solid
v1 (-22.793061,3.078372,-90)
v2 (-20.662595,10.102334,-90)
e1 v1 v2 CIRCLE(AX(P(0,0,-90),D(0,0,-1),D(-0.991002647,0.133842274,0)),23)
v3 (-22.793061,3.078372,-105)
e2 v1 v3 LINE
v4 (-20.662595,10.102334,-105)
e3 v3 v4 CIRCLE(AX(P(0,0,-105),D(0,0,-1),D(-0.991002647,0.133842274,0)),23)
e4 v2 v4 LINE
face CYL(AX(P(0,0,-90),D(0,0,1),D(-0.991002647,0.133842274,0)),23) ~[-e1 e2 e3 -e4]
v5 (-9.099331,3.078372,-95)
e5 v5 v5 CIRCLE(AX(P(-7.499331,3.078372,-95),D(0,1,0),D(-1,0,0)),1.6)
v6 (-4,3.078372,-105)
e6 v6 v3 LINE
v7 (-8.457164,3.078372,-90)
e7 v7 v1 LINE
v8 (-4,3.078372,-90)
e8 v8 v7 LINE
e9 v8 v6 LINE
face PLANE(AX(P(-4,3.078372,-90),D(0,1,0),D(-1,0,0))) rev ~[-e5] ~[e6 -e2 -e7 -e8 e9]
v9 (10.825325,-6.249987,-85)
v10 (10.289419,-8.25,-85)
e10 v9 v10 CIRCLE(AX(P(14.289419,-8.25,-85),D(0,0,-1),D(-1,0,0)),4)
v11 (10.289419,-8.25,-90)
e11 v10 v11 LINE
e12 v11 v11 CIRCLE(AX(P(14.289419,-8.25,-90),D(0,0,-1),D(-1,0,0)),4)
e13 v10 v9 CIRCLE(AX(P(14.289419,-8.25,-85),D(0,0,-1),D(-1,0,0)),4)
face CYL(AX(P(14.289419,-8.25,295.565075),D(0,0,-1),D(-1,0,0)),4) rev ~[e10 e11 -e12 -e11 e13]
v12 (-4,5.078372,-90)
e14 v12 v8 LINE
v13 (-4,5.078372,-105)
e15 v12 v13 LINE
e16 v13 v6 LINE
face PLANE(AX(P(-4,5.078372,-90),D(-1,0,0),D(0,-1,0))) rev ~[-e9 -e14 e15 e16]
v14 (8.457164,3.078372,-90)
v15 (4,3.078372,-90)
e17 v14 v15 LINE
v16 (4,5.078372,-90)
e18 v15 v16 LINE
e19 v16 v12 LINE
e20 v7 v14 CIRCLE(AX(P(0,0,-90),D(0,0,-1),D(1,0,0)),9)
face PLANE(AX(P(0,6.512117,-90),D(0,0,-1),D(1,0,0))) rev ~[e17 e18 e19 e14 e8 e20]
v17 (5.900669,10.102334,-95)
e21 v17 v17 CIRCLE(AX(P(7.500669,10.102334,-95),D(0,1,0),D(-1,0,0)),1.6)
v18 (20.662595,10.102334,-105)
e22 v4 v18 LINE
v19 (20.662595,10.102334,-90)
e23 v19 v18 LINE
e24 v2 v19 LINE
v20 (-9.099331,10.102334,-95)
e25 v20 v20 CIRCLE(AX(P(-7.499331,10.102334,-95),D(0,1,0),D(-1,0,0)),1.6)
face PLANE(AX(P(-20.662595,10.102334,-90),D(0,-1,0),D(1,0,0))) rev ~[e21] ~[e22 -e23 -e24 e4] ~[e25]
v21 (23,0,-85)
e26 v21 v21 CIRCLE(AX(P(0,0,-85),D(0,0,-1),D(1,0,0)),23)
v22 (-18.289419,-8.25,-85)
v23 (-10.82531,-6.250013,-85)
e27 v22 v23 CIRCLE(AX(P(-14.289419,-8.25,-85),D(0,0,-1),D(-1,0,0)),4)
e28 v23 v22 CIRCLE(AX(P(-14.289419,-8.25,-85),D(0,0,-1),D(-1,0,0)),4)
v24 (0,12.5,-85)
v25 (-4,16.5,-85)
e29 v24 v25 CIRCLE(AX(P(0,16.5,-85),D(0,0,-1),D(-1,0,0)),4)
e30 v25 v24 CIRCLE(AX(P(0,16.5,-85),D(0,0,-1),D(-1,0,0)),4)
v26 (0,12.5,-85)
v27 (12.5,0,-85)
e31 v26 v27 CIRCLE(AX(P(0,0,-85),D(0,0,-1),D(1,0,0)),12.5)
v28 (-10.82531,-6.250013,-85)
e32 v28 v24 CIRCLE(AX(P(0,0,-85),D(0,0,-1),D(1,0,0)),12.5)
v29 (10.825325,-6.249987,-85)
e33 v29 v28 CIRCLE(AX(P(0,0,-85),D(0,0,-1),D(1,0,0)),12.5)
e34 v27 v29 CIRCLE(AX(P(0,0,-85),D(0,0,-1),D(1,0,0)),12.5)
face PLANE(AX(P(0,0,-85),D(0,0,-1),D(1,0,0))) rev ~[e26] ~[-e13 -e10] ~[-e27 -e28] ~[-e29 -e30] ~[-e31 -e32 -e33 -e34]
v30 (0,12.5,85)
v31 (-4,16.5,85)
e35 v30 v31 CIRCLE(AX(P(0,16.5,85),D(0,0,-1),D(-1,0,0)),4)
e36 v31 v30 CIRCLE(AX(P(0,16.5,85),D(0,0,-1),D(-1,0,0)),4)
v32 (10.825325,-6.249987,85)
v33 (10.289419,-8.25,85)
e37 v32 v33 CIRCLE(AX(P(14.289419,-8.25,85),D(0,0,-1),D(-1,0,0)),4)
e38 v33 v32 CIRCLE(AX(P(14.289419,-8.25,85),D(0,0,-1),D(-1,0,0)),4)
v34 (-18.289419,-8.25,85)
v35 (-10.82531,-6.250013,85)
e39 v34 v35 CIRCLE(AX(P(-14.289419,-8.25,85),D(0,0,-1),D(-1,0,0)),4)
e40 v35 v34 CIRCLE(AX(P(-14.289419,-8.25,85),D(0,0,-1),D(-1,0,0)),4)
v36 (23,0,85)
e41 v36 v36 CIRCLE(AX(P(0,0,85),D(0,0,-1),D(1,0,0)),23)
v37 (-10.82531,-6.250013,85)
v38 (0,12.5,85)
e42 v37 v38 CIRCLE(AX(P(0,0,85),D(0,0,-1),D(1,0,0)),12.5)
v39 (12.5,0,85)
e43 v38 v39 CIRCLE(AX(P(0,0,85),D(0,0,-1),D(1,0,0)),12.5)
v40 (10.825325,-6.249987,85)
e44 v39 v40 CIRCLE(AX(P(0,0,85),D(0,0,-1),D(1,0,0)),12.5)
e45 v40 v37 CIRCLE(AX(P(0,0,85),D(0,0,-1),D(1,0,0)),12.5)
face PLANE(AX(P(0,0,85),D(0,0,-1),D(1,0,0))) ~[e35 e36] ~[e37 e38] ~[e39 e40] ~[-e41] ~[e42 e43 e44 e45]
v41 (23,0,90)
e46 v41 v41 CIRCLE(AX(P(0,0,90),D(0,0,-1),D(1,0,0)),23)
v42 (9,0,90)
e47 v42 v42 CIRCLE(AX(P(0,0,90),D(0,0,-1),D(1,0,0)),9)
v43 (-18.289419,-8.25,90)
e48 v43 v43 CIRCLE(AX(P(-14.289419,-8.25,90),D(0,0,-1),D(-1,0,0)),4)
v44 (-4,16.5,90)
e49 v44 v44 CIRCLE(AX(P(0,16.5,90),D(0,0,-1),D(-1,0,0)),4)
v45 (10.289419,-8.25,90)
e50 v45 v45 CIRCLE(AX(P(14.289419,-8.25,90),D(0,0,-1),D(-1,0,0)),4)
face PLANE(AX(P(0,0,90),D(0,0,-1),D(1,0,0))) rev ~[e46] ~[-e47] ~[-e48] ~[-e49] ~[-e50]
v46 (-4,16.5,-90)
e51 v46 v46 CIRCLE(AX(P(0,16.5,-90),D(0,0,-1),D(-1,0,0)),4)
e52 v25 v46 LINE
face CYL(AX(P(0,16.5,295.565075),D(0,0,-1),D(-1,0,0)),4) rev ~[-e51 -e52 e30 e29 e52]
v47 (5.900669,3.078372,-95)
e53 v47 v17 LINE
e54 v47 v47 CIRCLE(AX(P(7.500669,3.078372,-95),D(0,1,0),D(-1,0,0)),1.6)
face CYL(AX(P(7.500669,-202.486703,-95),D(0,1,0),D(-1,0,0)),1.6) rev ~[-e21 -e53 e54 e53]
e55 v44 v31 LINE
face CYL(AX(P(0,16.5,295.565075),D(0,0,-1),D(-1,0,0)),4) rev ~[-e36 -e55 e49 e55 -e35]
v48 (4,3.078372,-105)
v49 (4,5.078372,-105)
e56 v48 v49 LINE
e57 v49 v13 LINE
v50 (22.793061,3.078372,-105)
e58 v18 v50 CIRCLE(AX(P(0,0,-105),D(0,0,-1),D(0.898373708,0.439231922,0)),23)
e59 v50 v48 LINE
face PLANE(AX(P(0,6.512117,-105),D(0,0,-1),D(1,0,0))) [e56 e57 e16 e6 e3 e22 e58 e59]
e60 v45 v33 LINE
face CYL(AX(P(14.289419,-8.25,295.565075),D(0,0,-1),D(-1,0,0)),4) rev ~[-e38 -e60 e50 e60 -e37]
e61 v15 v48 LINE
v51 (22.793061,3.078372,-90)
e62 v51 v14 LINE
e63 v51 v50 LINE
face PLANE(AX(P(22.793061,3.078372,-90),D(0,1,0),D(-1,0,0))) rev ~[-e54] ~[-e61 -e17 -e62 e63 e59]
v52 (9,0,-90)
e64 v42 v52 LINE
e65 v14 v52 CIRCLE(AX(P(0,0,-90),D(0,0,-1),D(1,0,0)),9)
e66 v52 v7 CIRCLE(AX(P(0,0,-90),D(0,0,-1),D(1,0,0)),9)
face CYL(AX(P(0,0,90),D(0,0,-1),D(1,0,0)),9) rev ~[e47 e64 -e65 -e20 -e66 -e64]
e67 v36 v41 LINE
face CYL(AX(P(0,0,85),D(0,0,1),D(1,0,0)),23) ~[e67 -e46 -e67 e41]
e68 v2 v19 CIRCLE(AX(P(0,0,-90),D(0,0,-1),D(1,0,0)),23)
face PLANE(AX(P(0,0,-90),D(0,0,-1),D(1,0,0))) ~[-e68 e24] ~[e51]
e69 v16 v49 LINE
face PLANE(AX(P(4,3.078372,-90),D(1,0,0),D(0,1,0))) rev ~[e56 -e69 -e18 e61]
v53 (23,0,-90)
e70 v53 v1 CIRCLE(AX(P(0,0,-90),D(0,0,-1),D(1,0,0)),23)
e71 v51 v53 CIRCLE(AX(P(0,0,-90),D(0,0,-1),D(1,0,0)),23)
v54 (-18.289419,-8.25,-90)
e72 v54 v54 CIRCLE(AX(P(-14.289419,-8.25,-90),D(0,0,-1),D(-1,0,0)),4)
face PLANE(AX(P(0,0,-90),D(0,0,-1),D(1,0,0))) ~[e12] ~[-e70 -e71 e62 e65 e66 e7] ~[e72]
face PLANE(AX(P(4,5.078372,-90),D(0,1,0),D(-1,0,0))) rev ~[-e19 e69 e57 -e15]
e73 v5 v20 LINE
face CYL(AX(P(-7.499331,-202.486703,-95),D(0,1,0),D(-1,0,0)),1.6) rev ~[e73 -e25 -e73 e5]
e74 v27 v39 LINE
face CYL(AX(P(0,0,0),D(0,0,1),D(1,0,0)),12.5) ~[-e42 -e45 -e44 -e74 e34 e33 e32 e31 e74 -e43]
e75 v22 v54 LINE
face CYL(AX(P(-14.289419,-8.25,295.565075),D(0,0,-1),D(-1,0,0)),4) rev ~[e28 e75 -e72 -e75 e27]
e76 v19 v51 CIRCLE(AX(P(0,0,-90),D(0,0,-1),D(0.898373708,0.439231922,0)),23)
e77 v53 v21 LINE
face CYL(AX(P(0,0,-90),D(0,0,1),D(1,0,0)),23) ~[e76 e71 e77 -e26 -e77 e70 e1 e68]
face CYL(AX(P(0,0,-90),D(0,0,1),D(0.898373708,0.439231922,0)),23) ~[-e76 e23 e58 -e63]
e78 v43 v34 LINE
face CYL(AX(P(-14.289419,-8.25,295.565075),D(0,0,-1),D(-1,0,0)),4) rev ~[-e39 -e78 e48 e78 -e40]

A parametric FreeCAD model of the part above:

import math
import FreeCAD as App
import Part
import Sketcher

V = App.Vector


def add_polygon(sketch, points):
    """Adds a closed chain of lines whose ends are joined by coincident constraints."""
    first, n = sketch.GeometryCount, len(points)
    for a, b in zip(points, points[1:] + points[:1]):
        sketch.addGeometry(Part.LineSegment(App.Vector(*a, 0), App.Vector(*b, 0)), False)
    for i in range(n):
        sketch.addConstraint(Sketcher.Constraint("Coincident", first + i, 2, first + (i + 1) % n, 1))

doc = App.newDocument("Part")
params = doc.addObject("Spreadsheet::Sheet", "Params")
for row, (alias, value) in enumerate([
    ("sketch1_width", "14 mm"),
    ("sketch1_height", "170 mm"),
    ("sketch1_height2", "5 mm"),
    ("sketch1_width2", "10.5 mm"),
    ("revolution_angle", "360 deg"),
    ("sketch2_radius", "23 mm"),
    ("sketch2_width", "8 mm"),
    ("sketch2_height", "2 mm"),
    ("pad1_length", "15 mm"),
    ("sketch3_diameter", "3.2 mm"),
    ("hole_diameter", "3.2 mm"),
    ("sketch4_diameter", "8 mm"),
    ("hole2_diameter", "8 mm"),
], start=1):
    params.set(f"A{row}", alias)
    params.set(f"B{row}", "=" + value)
    params.setAlias(f"B{row}", alias)

body = doc.addObject("PartDesign::Body", "Body")

sketch1 = doc.addObject("Sketcher::SketchObject", "Sketch")
body.addObject(sketch1)
sketch1.AttachmentSupport = (doc.XZ_Plane, [""])
sketch1.MapMode = "FlatFace"
add_polygon(sketch1, [(12.5, -85), (12.5, 85), (23, 85), (23, 90), (9, 90), (9, -90), (23, -90), (23, -85)])
sketch1.addConstraint(Sketcher.Constraint("Vertical", 0))
sketch1.addConstraint(Sketcher.Constraint("Horizontal", 1))
sketch1.addConstraint(Sketcher.Constraint("Vertical", 2))
sketch1.addConstraint(Sketcher.Constraint("Horizontal", 3))
sketch1.addConstraint(Sketcher.Constraint("Vertical", 4))
sketch1.addConstraint(Sketcher.Constraint("Horizontal", 5))
sketch1.addConstraint(Sketcher.Constraint("Vertical", 6))
sketch1.addConstraint(Sketcher.Constraint("Horizontal", 7))
sketch1.addConstraint(Sketcher.Constraint("Symmetric", 2, 2, 5, 2, -1))
sketch1.addConstraint(Sketcher.Constraint("Equal", 2, 6))
sketch1.addConstraint(Sketcher.Constraint("DistanceX", 3, 2, 3, 1, 14.0))
sketch1.addConstraint(Sketcher.Constraint("DistanceY", 0, 1, 0, 2, 170.0))
sketch1.addConstraint(Sketcher.Constraint("DistanceY", 2, 1, 2, 2, 5.0))
sketch1.addConstraint(Sketcher.Constraint("DistanceX", 1, 1, 1, 2, 10.5))
sketch1.addConstraint(Sketcher.Constraint("DistanceX", -1, 1, 1, 2, 23.0))
sketch1.setExpression("Constraints[18]", "Params.sketch1_width")
sketch1.setExpression("Constraints[19]", "Params.sketch1_height")
sketch1.setExpression("Constraints[20]", "Params.sketch1_height2")
sketch1.setExpression("Constraints[21]", "Params.sketch1_width2")
revolution = doc.addObject("PartDesign::Revolution", "Revolution")
body.addObject(revolution)
revolution.Profile = sketch1
revolution.ReferenceAxis = (sketch1, ["V_Axis"])
revolution.setExpression("Angle", "Params.revolution_angle")

sketch2 = doc.addObject("Sketcher::SketchObject", "Sketch001")
body.addObject(sketch2)
sketch2.AttachmentSupport = (doc.XY_Plane, [""])
sketch2.MapMode = "FlatFace"
sketch2.AttachmentOffset = App.Placement(V(0, 0, -90), App.Rotation())
sketch2.addGeometry(Part.ArcOfCircle(Part.Circle(V(0, 0, 0), V(0, 0, 1), 23), math.radians(153.945115), math.radians(172.30832)), False)
sketch2.addGeometry(Part.LineSegment(V(-20.662595, 10.102334, 0), V(20.662595, 10.102334, 0)), False)
sketch2.addGeometry(Part.ArcOfCircle(Part.Circle(V(0, 0, 0), V(0, 0, 1), 23), math.radians(7.69168), math.radians(26.054885)), False)
sketch2.addGeometry(Part.LineSegment(V(22.793061, 3.078372, 0), V(4, 3.078372, 0)), False)
sketch2.addGeometry(Part.LineSegment(V(4, 3.078372, 0), V(4, 5.078372, 0)), False)
sketch2.addGeometry(Part.LineSegment(V(4, 5.078372, 0), V(-4, 5.078372, 0)), False)
sketch2.addGeometry(Part.LineSegment(V(-4, 5.078372, 0), V(-4, 3.078372, 0)), False)
sketch2.addGeometry(Part.LineSegment(V(-4, 3.078372, 0), V(-22.793061, 3.078372, 0)), False)
sketch2.addConstraint(Sketcher.Constraint("Coincident", 0, 1, 1, 1))
sketch2.addConstraint(Sketcher.Constraint("Coincident", 1, 2, 2, 2))
sketch2.addConstraint(Sketcher.Constraint("Coincident", 2, 1, 3, 1))
sketch2.addConstraint(Sketcher.Constraint("Coincident", 3, 2, 4, 1))
sketch2.addConstraint(Sketcher.Constraint("Coincident", 4, 2, 5, 1))
sketch2.addConstraint(Sketcher.Constraint("Coincident", 5, 2, 6, 1))
sketch2.addConstraint(Sketcher.Constraint("Coincident", 6, 2, 7, 1))
sketch2.addConstraint(Sketcher.Constraint("Coincident", 7, 2, 0, 2))
sketch2.addConstraint(Sketcher.Constraint("Horizontal", 1))
sketch2.addConstraint(Sketcher.Constraint("Horizontal", 3))
sketch2.addConstraint(Sketcher.Constraint("Vertical", 4))
sketch2.addConstraint(Sketcher.Constraint("Horizontal", 5))
sketch2.addConstraint(Sketcher.Constraint("Vertical", 6))
sketch2.addConstraint(Sketcher.Constraint("Horizontal", 7))
sketch2.addConstraint(Sketcher.Constraint("Coincident", 0, 3, -1, 1))
sketch2.addConstraint(Sketcher.Constraint("Coincident", 2, 3, -1, 1))
sketch2.addConstraint(Sketcher.Constraint("Equal", 0, 2))
sketch2.addConstraint(Sketcher.Constraint("Symmetric", 3, 2, 6, 2, -2))
sketch2.addConstraint(Sketcher.Constraint("Radius", 0, 23.0))
sketch2.addConstraint(Sketcher.Constraint("DistanceX", 5, 2, 5, 1, 8.0))
sketch2.addConstraint(Sketcher.Constraint("DistanceY", 4, 1, 4, 2, 2.0))
sketch2.addConstraint(Sketcher.Constraint("DistanceX", 1, 1, 1, 2, 41.325191))
sketch2.addConstraint(Sketcher.Constraint("DistanceX", 3, 2, 3, 1, 18.793061))
sketch2.setExpression("Constraints[18]", "Params.sketch2_radius")
sketch2.setExpression("Constraints[19]", "Params.sketch2_width")
sketch2.setExpression("Constraints[20]", "Params.sketch2_height")
pad1 = doc.addObject("PartDesign::Pad", "Pad")
body.addObject(pad1)
pad1.Profile = sketch2
pad1.setExpression("Length", "Params.pad1_length")
pad1.Reversed = True

sketch3 = doc.addObject("Sketcher::SketchObject", "Sketch002")
body.addObject(sketch3)
sketch3.AttachmentSupport = (doc.XZ_Plane, [""])
sketch3.MapMode = "FlatFace"
sketch3.AttachmentOffset = App.Placement(V(0, 0, -3.078372), App.Rotation())
sketch3.addGeometry(Part.Circle(V(-7.499331, -95, 0), V(0, 0, 1), 1.6), False)
sketch3.addGeometry(Part.Circle(V(7.500669, -95, 0), V(0, 0, 1), 1.6), False)
sketch3.addConstraint(Sketcher.Constraint("Equal", 0, 1))
sketch3.addConstraint(Sketcher.Constraint("Horizontal", 0, 3, 1, 3))
sketch3.addConstraint(Sketcher.Constraint("Diameter", 0, 3.2))
sketch3.addConstraint(Sketcher.Constraint("DistanceY", 0, 3, -1, 1, 95.0))
sketch3.addConstraint(Sketcher.Constraint("DistanceX", 0, 3, 1, 3, 15.0))
sketch3.addConstraint(Sketcher.Constraint("DistanceX", 0, 3, -1, 1, 7.499331))
sketch3.setExpression("Constraints[2]", "Params.sketch3_diameter")
doc.recompute()
hole = doc.addObject("PartDesign::Hole", "Hole")
body.addObject(hole)
hole.Profile = sketch3
hole.ThreadType = "None"
hole.setExpression("Diameter", "Params.hole_diameter")
hole.DepthType = "ThroughAll"

sketch4 = doc.addObject("Sketcher::SketchObject", "Sketch003")
body.addObject(sketch4)
sketch4.AttachmentSupport = (doc.XY_Plane, [""])
sketch4.MapMode = "FlatFace"
sketch4.AttachmentOffset = App.Placement(V(0, 0, 90), App.Rotation())
sketch4.addGeometry(Part.Circle(V(-14.289419, -8.25, 0), V(0, 0, 1), 4), False)
sketch4.addGeometry(Part.Circle(V(0, 16.5, 0), V(0, 0, 1), 4), False)
sketch4.addGeometry(Part.Circle(V(14.289419, -8.25, 0), V(0, 0, 1), 4), False)
sketch4.addConstraint(Sketcher.Constraint("Equal", 0, 1))
sketch4.addConstraint(Sketcher.Constraint("Equal", 1, 2))
sketch4.addConstraint(Sketcher.Constraint("Symmetric", 0, 3, 2, 3, -2))
sketch4.addConstraint(Sketcher.Constraint("PointOnObject", 1, 3, -2))
sketch4.addConstraint(Sketcher.Constraint("Diameter", 0, 8.0))
sketch4.addConstraint(Sketcher.Constraint("DistanceY", -1, 1, 1, 3, 16.5))
sketch4.addConstraint(Sketcher.Constraint("DistanceY", 0, 3, -1, 1, 8.25))
sketch4.addConstraint(Sketcher.Constraint("DistanceX", 0, 3, -1, 1, 14.289419))
sketch4.setExpression("Constraints[4]", "Params.sketch4_diameter")
doc.recompute()
hole2 = doc.addObject("PartDesign::Hole", "Hole001")
body.addObject(hole2)
hole2.Profile = sketch4
hole2.ThreadType = "None"
hole2.setExpression("Diameter", "Params.hole2_diameter")
hole2.DepthType = "ThroughAll"

doc.recompute()
